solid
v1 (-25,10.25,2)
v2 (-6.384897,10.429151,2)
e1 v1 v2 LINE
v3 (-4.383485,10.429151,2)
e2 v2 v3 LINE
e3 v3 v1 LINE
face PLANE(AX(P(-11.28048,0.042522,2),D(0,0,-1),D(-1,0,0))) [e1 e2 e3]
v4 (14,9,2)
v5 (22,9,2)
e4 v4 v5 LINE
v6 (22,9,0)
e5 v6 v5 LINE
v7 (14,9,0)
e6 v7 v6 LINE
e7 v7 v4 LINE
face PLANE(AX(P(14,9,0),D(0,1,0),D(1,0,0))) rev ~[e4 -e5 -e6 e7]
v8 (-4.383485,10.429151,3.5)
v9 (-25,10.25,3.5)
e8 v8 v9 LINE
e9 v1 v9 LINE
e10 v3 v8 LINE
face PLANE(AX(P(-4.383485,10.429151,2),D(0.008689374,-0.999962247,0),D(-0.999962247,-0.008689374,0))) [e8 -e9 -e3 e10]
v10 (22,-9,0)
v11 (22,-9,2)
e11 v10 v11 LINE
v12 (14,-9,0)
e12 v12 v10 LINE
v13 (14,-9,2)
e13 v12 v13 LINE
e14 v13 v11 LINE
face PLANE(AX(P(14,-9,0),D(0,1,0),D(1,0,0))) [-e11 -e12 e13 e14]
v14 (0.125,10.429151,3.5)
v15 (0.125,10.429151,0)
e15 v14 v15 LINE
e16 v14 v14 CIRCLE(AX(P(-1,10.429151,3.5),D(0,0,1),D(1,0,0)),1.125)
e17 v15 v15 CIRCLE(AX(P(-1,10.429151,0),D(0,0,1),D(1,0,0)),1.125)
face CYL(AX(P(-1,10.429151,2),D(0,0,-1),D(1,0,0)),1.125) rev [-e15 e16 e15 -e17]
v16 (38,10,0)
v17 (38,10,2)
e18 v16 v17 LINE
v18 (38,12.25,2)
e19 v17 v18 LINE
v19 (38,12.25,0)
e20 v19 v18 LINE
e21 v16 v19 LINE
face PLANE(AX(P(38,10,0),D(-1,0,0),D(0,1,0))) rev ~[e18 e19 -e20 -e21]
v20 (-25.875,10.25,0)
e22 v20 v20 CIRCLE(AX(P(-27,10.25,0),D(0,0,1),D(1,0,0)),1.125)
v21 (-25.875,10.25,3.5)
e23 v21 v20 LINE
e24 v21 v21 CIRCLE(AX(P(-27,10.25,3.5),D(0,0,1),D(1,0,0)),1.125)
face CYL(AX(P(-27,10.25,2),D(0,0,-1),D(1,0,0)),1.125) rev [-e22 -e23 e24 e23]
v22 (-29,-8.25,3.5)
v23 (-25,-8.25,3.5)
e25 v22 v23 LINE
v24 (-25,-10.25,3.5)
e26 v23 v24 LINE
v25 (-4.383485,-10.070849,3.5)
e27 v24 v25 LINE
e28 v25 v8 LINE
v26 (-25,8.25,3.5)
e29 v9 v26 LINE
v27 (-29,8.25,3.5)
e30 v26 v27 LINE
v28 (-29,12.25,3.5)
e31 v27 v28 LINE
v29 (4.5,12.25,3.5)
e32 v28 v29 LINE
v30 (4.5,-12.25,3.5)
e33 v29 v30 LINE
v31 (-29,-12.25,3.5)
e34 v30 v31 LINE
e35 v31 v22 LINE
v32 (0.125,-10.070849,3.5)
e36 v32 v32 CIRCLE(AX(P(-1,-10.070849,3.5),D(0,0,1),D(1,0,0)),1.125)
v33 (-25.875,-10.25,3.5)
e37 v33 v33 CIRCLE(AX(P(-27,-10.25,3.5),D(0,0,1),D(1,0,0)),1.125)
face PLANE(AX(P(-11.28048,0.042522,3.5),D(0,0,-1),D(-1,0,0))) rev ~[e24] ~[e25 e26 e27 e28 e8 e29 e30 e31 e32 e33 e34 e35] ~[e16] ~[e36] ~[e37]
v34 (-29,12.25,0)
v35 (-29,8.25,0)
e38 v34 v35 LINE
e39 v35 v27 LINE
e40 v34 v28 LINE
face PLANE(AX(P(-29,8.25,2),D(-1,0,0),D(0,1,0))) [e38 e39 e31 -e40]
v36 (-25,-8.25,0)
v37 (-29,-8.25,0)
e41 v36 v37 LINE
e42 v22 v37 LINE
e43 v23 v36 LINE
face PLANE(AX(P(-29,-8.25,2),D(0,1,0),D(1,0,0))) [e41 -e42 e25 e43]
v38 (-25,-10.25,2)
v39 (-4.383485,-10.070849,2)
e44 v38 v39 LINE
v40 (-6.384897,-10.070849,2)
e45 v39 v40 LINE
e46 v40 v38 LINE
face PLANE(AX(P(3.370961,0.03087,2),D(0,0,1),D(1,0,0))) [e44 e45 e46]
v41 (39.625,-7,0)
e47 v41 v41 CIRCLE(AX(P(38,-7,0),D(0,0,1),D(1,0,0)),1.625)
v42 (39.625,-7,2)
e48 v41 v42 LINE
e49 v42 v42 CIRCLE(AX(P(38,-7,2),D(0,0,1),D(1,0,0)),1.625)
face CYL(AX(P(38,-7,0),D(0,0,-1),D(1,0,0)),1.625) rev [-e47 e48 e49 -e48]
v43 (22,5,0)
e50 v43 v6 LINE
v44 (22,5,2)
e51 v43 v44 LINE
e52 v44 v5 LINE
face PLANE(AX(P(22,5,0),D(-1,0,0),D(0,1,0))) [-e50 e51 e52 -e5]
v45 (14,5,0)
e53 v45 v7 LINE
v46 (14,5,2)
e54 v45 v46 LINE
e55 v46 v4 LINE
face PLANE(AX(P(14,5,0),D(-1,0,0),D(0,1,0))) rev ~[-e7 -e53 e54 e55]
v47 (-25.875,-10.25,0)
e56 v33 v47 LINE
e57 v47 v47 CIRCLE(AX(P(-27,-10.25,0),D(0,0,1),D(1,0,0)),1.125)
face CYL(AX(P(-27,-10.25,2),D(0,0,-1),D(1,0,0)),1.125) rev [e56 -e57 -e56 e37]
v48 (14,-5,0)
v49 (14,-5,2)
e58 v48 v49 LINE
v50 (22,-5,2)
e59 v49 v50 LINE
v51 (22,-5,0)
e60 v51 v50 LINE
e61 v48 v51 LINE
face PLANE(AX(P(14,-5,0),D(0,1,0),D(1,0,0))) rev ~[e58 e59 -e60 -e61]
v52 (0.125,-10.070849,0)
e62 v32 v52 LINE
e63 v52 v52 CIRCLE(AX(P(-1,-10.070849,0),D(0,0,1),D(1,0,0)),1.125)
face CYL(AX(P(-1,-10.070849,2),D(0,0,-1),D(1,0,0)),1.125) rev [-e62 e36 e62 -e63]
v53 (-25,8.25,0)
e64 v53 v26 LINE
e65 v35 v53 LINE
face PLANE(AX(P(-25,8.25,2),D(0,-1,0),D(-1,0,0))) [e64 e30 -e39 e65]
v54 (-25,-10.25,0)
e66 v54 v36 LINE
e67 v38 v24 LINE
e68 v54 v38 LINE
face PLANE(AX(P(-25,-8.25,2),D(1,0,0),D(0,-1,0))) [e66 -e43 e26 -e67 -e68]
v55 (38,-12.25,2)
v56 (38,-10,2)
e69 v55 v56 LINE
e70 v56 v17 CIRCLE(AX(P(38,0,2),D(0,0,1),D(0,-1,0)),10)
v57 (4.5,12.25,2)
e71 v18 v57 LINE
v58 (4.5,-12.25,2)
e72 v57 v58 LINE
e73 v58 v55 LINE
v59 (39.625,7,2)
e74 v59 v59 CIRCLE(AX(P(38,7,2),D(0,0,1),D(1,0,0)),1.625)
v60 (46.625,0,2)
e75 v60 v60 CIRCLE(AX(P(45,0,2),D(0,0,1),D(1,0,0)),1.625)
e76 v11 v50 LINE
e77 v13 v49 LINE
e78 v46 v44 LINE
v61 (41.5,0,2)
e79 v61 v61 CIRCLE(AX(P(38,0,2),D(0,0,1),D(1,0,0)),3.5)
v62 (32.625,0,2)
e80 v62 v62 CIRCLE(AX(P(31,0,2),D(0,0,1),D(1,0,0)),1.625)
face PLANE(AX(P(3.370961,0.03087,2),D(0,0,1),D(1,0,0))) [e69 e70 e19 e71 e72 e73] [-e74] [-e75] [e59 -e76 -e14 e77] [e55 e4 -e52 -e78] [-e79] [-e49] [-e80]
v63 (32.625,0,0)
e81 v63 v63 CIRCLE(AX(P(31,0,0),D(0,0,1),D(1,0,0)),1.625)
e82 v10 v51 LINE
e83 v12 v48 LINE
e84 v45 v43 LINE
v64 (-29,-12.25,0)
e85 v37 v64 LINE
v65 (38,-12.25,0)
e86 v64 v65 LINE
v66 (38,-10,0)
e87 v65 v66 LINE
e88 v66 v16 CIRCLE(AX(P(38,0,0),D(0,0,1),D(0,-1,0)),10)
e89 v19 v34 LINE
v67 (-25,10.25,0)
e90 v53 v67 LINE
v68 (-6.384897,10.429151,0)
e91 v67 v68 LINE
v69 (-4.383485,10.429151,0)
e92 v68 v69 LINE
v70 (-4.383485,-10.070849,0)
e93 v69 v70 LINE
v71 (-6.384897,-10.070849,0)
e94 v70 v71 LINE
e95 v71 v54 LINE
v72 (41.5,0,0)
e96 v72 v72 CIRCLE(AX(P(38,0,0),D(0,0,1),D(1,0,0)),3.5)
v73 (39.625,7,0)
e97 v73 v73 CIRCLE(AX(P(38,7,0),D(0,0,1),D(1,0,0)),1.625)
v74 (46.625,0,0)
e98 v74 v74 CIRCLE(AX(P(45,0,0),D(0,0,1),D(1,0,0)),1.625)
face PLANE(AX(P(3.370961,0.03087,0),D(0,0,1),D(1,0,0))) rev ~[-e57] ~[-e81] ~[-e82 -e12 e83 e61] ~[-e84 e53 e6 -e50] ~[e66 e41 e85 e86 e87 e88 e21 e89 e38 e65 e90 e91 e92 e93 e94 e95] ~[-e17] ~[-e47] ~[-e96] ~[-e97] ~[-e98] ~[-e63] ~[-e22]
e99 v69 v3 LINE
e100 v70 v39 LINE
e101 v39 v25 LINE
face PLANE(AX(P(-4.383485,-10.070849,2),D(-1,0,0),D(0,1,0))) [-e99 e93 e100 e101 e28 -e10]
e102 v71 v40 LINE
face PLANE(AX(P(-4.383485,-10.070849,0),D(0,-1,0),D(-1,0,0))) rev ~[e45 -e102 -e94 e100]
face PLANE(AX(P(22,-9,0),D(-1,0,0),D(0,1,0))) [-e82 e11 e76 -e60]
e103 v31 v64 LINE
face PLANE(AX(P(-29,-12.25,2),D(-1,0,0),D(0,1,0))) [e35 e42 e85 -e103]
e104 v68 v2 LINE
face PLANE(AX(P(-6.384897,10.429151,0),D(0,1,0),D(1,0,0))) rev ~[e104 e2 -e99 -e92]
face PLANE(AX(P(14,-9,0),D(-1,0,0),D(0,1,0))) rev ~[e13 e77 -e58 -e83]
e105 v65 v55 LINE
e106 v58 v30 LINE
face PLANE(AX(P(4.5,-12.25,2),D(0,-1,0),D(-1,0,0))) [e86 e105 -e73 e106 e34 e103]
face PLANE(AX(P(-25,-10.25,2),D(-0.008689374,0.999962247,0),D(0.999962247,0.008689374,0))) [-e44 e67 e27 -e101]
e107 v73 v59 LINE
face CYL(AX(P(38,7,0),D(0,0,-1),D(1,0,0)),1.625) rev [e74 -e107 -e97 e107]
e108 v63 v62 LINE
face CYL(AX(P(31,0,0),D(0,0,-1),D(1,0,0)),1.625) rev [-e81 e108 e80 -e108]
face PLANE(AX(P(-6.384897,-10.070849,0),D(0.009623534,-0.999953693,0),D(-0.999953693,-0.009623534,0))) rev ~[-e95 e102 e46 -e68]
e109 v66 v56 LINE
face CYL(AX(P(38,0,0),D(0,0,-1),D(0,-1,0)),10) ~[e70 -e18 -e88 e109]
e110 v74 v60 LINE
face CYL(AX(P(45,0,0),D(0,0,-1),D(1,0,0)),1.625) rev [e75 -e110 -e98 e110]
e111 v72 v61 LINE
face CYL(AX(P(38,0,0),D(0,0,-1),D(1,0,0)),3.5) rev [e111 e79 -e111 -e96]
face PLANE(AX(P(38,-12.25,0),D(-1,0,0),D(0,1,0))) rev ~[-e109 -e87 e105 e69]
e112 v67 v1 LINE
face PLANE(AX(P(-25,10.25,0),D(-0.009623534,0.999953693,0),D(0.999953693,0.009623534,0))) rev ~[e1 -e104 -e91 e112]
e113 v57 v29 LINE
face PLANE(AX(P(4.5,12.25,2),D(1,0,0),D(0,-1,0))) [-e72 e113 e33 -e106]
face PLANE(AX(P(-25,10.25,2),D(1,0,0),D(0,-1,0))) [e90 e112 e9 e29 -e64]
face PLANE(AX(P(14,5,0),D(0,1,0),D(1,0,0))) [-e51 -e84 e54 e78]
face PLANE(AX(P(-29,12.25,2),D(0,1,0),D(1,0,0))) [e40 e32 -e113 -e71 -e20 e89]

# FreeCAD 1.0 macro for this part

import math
import FreeCAD as App
import Part
import Sketcher

doc = App.newDocument("Part")
body = doc.addObject("PartDesign::Body", "Body")

# Sketch on XY plane
sketch1 = body.newObject("Sketcher::SketchObject", "Sketch")
sketch1.AttachmentSupport = (doc.getObject("XY_Plane"), [""])
sketch1.MapMode = "FlatFace"
sketch1.addGeometry(Part.LineSegment(App.Vector(-29, -8.2, 0), App.Vector(-29, -12.2, 0)), False)
sketch1.addGeometry(Part.LineSegment(App.Vector(-29, -12.2, 0), App.Vector(38, -12.2, 0)), False)
sketch1.addGeometry(Part.LineSegment(App.Vector(38, -12.2, 0), App.Vector(38, -10, 0)), False)
sketch1.addGeometry(Part.ArcOfCircle(Part.Circle(App.Vector(38, 0, 0), App.Vector(0, 0, 1), 10), math.radians(-90), math.radians(90)), False)
sketch1.addGeometry(Part.LineSegment(App.Vector(38, 10, 0), App.Vector(38, 12.2, 0)), False)
sketch1.addGeometry(Part.LineSegment(App.Vector(38, 12.2, 0), App.Vector(-29, 12.2, 0)), False)
sketch1.addGeometry(Part.LineSegment(App.Vector(-29, 12.2, 0), App.Vector(-29, 8.2, 0)), False)
sketch1.addGeometry(Part.LineSegment(App.Vector(-29, 8.2, 0), App.Vector(-25, 8.2, 0)), False)
sketch1.addGeometry(Part.LineSegment(App.Vector(-25, 8.2, 0), App.Vector(-25, 10.2, 0)), False)
sketch1.addGeometry(Part.LineSegment(App.Vector(-25, 10.2, 0), App.Vector(-6.4, 10.4, 0)), False)
sketch1.addGeometry(Part.LineSegment(App.Vector(-6.4, 10.4, 0), App.Vector(-4.4, 10.4, 0)), False)
sketch1.addGeometry(Part.LineSegment(App.Vector(-4.4, 10.4, 0), App.Vector(-4.4, -10.1, 0)), False)
sketch1.addGeometry(Part.LineSegment(App.Vector(-4.4, -10.1, 0), App.Vector(-6.4, -10.1, 0)), False)
sketch1.addGeometry(Part.LineSegment(App.Vector(-6.4, -10.1, 0), App.Vector(-25, -10.2, 0)), False)
sketch1.addGeometry(Part.LineSegment(App.Vector(-25, -10.2, 0), App.Vector(-25, -8.2, 0)), False)
sketch1.addGeometry(Part.LineSegment(App.Vector(-25, -8.2, 0), App.Vector(-29, -8.2, 0)), False)
sketch1.addGeometry(Part.Circle(App.Vector(-27, -10.2, 0), App.Vector(0, 0, 1), 1.1), False)
sketch1.addGeometry(Part.Circle(App.Vector(-1, -10.1, 0), App.Vector(0, 0, 1), 1.1), False)
sketch1.addGeometry(Part.LineSegment(App.Vector(22, -9, 0), App.Vector(14, -9, 0)), False)
sketch1.addGeometry(Part.LineSegment(App.Vector(14, -9, 0), App.Vector(14, -5, 0)), False)
sketch1.addGeometry(Part.LineSegment(App.Vector(14, -5, 0), App.Vector(22, -5, 0)), False)
sketch1.addGeometry(Part.LineSegment(App.Vector(22, -5, 0), App.Vector(22, -9, 0)), False)
sketch1.addGeometry(Part.Circle(App.Vector(38, -7, 0), App.Vector(0, 0, 1), 1.6), False)
sketch1.addGeometry(Part.Circle(App.Vector(31, 0, 0), App.Vector(0, 0, 1), 1.6), False)
sketch1.addGeometry(Part.Circle(App.Vector(38, 0, 0), App.Vector(0, 0, 1), 3.5), False)
sketch1.addGeometry(Part.Circle(App.Vector(45, 0, 0), App.Vector(0, 0, 1), 1.6), False)
sketch1.addGeometry(Part.Circle(App.Vector(-27, 10.2, 0), App.Vector(0, 0, 1), 1.1), False)
sketch1.addGeometry(Part.Circle(App.Vector(-1, 10.4, 0), App.Vector(0, 0, 1), 1.1), False)
sketch1.addGeometry(Part.LineSegment(App.Vector(22, 5, 0), App.Vector(14, 5, 0)), False)
sketch1.addGeometry(Part.LineSegment(App.Vector(14, 5, 0), App.Vector(14, 9, 0)), False)
sketch1.addGeometry(Part.LineSegment(App.Vector(14, 9, 0), App.Vector(22, 9, 0)), False)
sketch1.addGeometry(Part.LineSegment(App.Vector(22, 9, 0), App.Vector(22, 5, 0)), False)
sketch1.addGeometry(Part.Circle(App.Vector(38, 7, 0), App.Vector(0, 0, 1), 1.6), False)
sketch1.addConstraint(Sketcher.Constraint("Coincident", 0, 2, 1, 1))
sketch1.addConstraint(Sketcher.Constraint("Coincident", 1, 2, 2, 1))
sketch1.addConstraint(Sketcher.Constraint("Coincident", 2, 2, 3, 1))
sketch1.addConstraint(Sketcher.Constraint("Coincident", 3, 2, 4, 1))
sketch1.addConstraint(Sketcher.Constraint("Coincident", 4, 2, 5, 1))
sketch1.addConstraint(Sketcher.Constraint("Coincident", 5, 2, 6, 1))
sketch1.addConstraint(Sketcher.Constraint("Coincident", 6, 2, 7, 1))
sketch1.addConstraint(Sketcher.Constraint("Coincident", 7, 2, 8, 1))
sketch1.addConstraint(Sketcher.Constraint("Coincident", 8, 2, 9, 1))
sketch1.addConstraint(Sketcher.Constraint("Coincident", 9, 2, 10, 1))
sketch1.addConstraint(Sketcher.Constraint("Coincident", 10, 2, 11, 1))
sketch1.addConstraint(Sketcher.Constraint("Coincident", 11, 2, 12, 1))
sketch1.addConstraint(Sketcher.Constraint("Coincident", 12, 2, 13, 1))
sketch1.addConstraint(Sketcher.Constraint("Coincident", 13, 2, 14, 1))
sketch1.addConstraint(Sketcher.Constraint("Coincident", 14, 2, 15, 1))
sketch1.addConstraint(Sketcher.Constraint("Coincident", 15, 2, 0, 1))
sketch1.addConstraint(Sketcher.Constraint("Coincident", 18, 2, 19, 1))
sketch1.addConstraint(Sketcher.Constraint("Coincident", 19, 2, 20, 1))
sketch1.addConstraint(Sketcher.Constraint("Coincident", 20, 2, 21, 1))
sketch1.addConstraint(Sketcher.Constraint("Coincident", 21, 2, 18, 1))
sketch1.addConstraint(Sketcher.Constraint("Coincident", 28, 2, 29, 1))
sketch1.addConstraint(Sketcher.Constraint("Coincident", 29, 2, 30, 1))
sketch1.addConstraint(Sketcher.Constraint("Coincident", 30, 2, 31, 1))
sketch1.addConstraint(Sketcher.Constraint("Coincident", 31, 2, 28, 1))
sketch1.addConstraint(Sketcher.Constraint("Vertical", 0))
sketch1.addConstraint(Sketcher.Constraint("Horizontal", 1))
sketch1.addConstraint(Sketcher.Constraint("Vertical", 2))
sketch1.addConstraint(Sketcher.Constraint("Vertical", 4))
sketch1.addConstraint(Sketcher.Constraint("Horizontal", 5))
sketch1.addConstraint(Sketcher.Constraint("Vertical", 6))
sketch1.addConstraint(Sketcher.Constraint("Horizontal", 7))
sketch1.addConstraint(Sketcher.Constraint("Vertical", 8))
sketch1.addConstraint(Sketcher.Constraint("Horizontal", 10))
sketch1.addConstraint(Sketcher.Constraint("Vertical", 11))
sketch1.addConstraint(Sketcher.Constraint("Horizontal", 12))
sketch1.addConstraint(Sketcher.Constraint("Vertical", 14))
sketch1.addConstraint(Sketcher.Constraint("Horizontal", 15))
sketch1.addConstraint(Sketcher.Constraint("Horizontal", 18))
sketch1.addConstraint(Sketcher.Constraint("Vertical", 19))
sketch1.addConstraint(Sketcher.Constraint("Horizontal", 20))
sketch1.addConstraint(Sketcher.Constraint("Vertical", 21))
sketch1.addConstraint(Sketcher.Constraint("Horizontal", 28))
sketch1.addConstraint(Sketcher.Constraint("Vertical", 29))
sketch1.addConstraint(Sketcher.Constraint("Horizontal", 30))
sketch1.addConstraint(Sketcher.Constraint("Vertical", 31))
sketch1.addConstraint(Sketcher.Constraint("Coincident", 24, 3, 3, 3))
sketch1.addConstraint(Sketcher.Constraint("Equal", 16, 17))
sketch1.addConstraint(Sketcher.Constraint("Equal", 22, 23))
sketch1.addConstraint(Sketcher.Constraint("Equal", 23, 25))
sketch1.addConstraint(Sketcher.Constraint("Equal", 17, 26))
sketch1.addConstraint(Sketcher.Constraint("Equal", 26, 27))
sketch1.addConstraint(Sketcher.Constraint("Equal", 25, 32))
sketch1.addConstraint(Sketcher.Constraint("Symmetric", 16, 3, 26, 3, -1))
sketch1.addConstraint(Sketcher.Constraint("Symmetric", 22, 3, 32, 3, -1))
sketch1.addConstraint(Sketcher.Constraint("Symmetric", 2, 2, 3, 2, -1))
sketch1.addConstraint(Sketcher.Constraint("Symmetric", 0, 2, 5, 2, -1))
sketch1.addConstraint(Sketcher.Constraint("Symmetric", 8, 2, 13, 2, -1))
sketch1.addConstraint(Sketcher.Constraint("Symmetric", 19, 2, 28, 2, -1))
sketch1.addConstraint(Sketcher.Constraint("Symmetric", 21, 2, 30, 2, -1))
sketch1.addConstraint(Sketcher.Constraint("PointOnObject", 23, 3, -1))
sketch1.addConstraint(Sketcher.Constraint("PointOnObject", 25, 3, -1))
sketch1.addConstraint(Sketcher.Constraint("Parallel", 9, 13))
sketch1.addConstraint(Sketcher.Constraint("Horizontal", 26, 3, 8, 2))
sketch1.addConstraint(Sketcher.Constraint("Horizontal", 27, 3, 9, 2))
sketch1.addConstraint(Sketcher.Constraint("Horizontal", 17, 3, 11, 2))
sketch1.addConstraint(Sketcher.Constraint("Vertical", 3, 3, 22, 3))
sketch1.addConstraint(Sketcher.Constraint("Vertical", 17, 3, 27, 3))
sketch1.addConstraint(Sketcher.Constraint("Vertical", 32, 3, 1, 2))
sketch1.addConstraint(Sketcher.Constraint("Vertical", 9, 2, 12, 2))
sketch1.addConstraint(Sketcher.Constraint("Equal", 15, 0))
sketch1.addConstraint(Sketcher.Constraint("Equal", 0, 6))
sketch1.addConstraint(Sketcher.Constraint("Equal", 6, 19))
sketch1.addConstraint(Sketcher.Constraint("Diameter", 24, 7.0))
sketch1.addConstraint(Sketcher.Constraint("Radius", 3, 10.0))
sketch1.addConstraint(Sketcher.Constraint("Diameter", 16, 2.25))
sketch1.addConstraint(Sketcher.Constraint("Diameter", 22, 3.25))
sketch1.addConstraint(Sketcher.Constraint("DistanceX", 1, 1, 1, 2, 67.0))
sketch1.addConstraint(Sketcher.Constraint("DistanceX", 7, 1, 7, 2, 4.0))
sketch1.addConstraint(Sketcher.Constraint("DistanceX", 18, 2, 18, 1, 8.0))
sketch1.addConstraint(Sketcher.Constraint("DistanceY", 8, 1, 8, 2, 2.0))
sketch1.addConstraint(Sketcher.Constraint("DistanceY", 11, 2, 11, 1, 20.5))
sketch1.addConstraint(Sketcher.Constraint("DistanceX", -1, 1, 3, 3, 38.0))
sketch1.addConstraint(Sketcher.Constraint("DistanceX", 16, 3, -1, 1, 27.0))
sketch1.addConstraint(Sketcher.Constraint("DistanceX", 17, 3, -1, 1, 1.0))
sketch1.addConstraint(Sketcher.Constraint("DistanceY", 22, 3, -1, 1, 7.0))
sketch1.addConstraint(Sketcher.Constraint("DistanceX", -1, 1, 23, 3, 31.0))
sketch1.addConstraint(Sketcher.Constraint("DistanceX", -1, 1, 25, 3, 45.0))
sketch1.addConstraint(Sketcher.Constraint("DistanceX", -1, 1, 18, 2, 14.0))
sketch1.addConstraint(Sketcher.Constraint("DistanceY", 18, 2, -1, 1, 9.0))
sketch1.addConstraint(Sketcher.Constraint("DistanceX", 10, 1, 10, 2, 2.001412))
sketch1.addConstraint(Sketcher.Constraint("DistanceY", 17, 3, -1, 1, 10.070849))
sketch1.addConstraint(Sketcher.Constraint("Distance", 9, 18.615965))
pad1 = body.newObject("PartDesign::Pad", "Pad")
pad1.Profile = sketch1
pad1.Length = 2

# Sketch on XY plane
sketch2 = body.newObject("Sketcher::SketchObject", "Sketch001")
sketch2.AttachmentSupport = (doc.getObject("XY_Plane"), [""])
sketch2.MapMode = "FlatFace"
sketch2.AttachmentOffset = App.Placement(App.Vector(0, 0, 2), App.Rotation())
sketch2.addGeometry(Part.LineSegment(App.Vector(4.5, 12.2, 0), App.Vector(-29, 12.2, 0)), False)
sketch2.addGeometry(Part.LineSegment(App.Vector(-29, 12.2, 0), App.Vector(-29, 8.2, 0)), False)
sketch2.addGeometry(Part.LineSegment(App.Vector(-29, 8.2, 0), App.Vector(-25, 8.2, 0)), False)
sketch2.addGeometry(Part.LineSegment(App.Vector(-25, 8.2, 0), App.Vector(-25, 10.2, 0)), False)
sketch2.addGeometry(Part.LineSegment(App.Vector(-25, 10.2, 0), App.Vector(-4.4, 10.4, 0)), False)
sketch2.addGeometry(Part.LineSegment(App.Vector(-4.4, 10.4, 0), App.Vector(-4.4, -10.1, 0)), False)
sketch2.addGeometry(Part.LineSegment(App.Vector(-4.4, -10.1, 0), App.Vector(-25, -10.2, 0)), False)
sketch2.addGeometry(Part.LineSegment(App.Vector(-25, -10.2, 0), App.Vector(-25, -8.2, 0)), False)
sketch2.addGeometry(Part.LineSegment(App.Vector(-25, -8.2, 0), App.Vector(-29, -8.2, 0)), False)
sketch2.addGeometry(Part.LineSegment(App.Vector(-29, -8.2, 0), App.Vector(-29, -12.2, 0)), False)
sketch2.addGeometry(Part.LineSegment(App.Vector(-29, -12.2, 0), App.Vector(4.5, -12.2, 0)), False)
sketch2.addGeometry(Part.LineSegment(App.Vector(4.5, -12.2, 0), App.Vector(4.5, 12.2, 0)), False)
sketch2.addGeometry(Part.Circle(App.Vector(-1, -10.1, 0), App.Vector(0, 0, 1), 1.1), False)
sketch2.addGeometry(Part.Circle(App.Vector(-27, -10.2, 0), App.Vector(0, 0, 1), 1.1), False)
sketch2.addGeometry(Part.Circle(App.Vector(-1, 10.4, 0), App.Vector(0, 0, 1), 1.1), False)
sketch2.addGeometry(Part.Circle(App.Vector(-27, 10.2, 0), App.Vector(0, 0, 1), 1.1), False)
sketch2.addConstraint(Sketcher.Constraint("Coincident", 0, 2, 1, 1))
sketch2.addConstraint(Sketcher.Constraint("Coincident", 1, 2, 2, 1))
sketch2.addConstraint(Sketcher.Constraint("Coincident", 2, 2, 3, 1))
sketch2.addConstraint(Sketcher.Constraint("Coincident", 3, 2, 4, 1))
sketch2.addConstraint(Sketcher.Constraint("Coincident", 4, 2, 5, 1))
sketch2.addConstraint(Sketcher.Constraint("Coincident", 5, 2, 6, 1))
sketch2.addConstraint(Sketcher.Constraint("Coincident", 6, 2, 7, 1))
sketch2.addConstraint(Sketcher.Constraint("Coincident", 7, 2, 8, 1))
sketch2.addConstraint(Sketcher.Constraint("Coincident", 8, 2, 9, 1))
sketch2.addConstraint(Sketcher.Constraint("Coincident", 9, 2, 10, 1))
sketch2.addConstraint(Sketcher.Constraint("Coincident", 10, 2, 11, 1))
sketch2.addConstraint(Sketcher.Constraint("Coincident", 11, 2, 0, 1))
sketch2.addConstraint(Sketcher.Constraint("Horizontal", 0))
sketch2.addConstraint(Sketcher.Constraint("Vertical", 1))
sketch2.addConstraint(Sketcher.Constraint("Horizontal", 2))
sketch2.addConstraint(Sketcher.Constraint("Vertical", 3))
sketch2.addConstraint(Sketcher.Constraint("Vertical", 5))
sketch2.addConstraint(Sketcher.Constraint("Vertical", 7))
sketch2.addConstraint(Sketcher.Constraint("Horizontal", 8))
sketch2.addConstraint(Sketcher.Constraint("Vertical", 9))
sketch2.addConstraint(Sketcher.Constraint("Horizontal", 10))
sketch2.addConstraint(Sketcher.Constraint("Vertical", 11))
sketch2.addConstraint(Sketcher.Constraint("Equal", 12, 13))
sketch2.addConstraint(Sketcher.Constraint("Equal", 13, 14))
sketch2.addConstraint(Sketcher.Constraint("Equal", 14, 15))
sketch2.addConstraint(Sketcher.Constraint("Symmetric", 13, 3, 15, 3, -1))
sketch2.addConstraint(Sketcher.Constraint("Symmetric", 3, 2, 6, 2, -1))
sketch2.addConstraint(Sketcher.Constraint("Symmetric", 1, 2, 8, 2, -1))
sketch2.addConstraint(Sketcher.Constraint("Parallel", 4, 6))
sketch2.addConstraint(Sketcher.Constraint("Horizontal", 15, 3, 3, 2))
sketch2.addConstraint(Sketcher.Constraint("Horizontal", 14, 3, 4, 2))
sketch2.addConstraint(Sketcher.Constraint("Horizontal", 12, 3, 5, 2))
sketch2.addConstraint(Sketcher.Constraint("Vertical", 12, 3, 14, 3))
sketch2.addConstraint(Sketcher.Constraint("Equal", 8, 1))
sketch2.addConstraint(Sketcher.Constraint("Equal", 1, 9))
sketch2.addConstraint(Sketcher.Constraint("Diameter", 12, 2.25))
sketch2.addConstraint(Sketcher.Constraint("DistanceX", 2, 1, 2, 2, 4.0))
sketch2.addConstraint(Sketcher.Constraint("DistanceY", 3, 1, 3, 2, 2.0))
sketch2.addConstraint(Sketcher.Constraint("DistanceX", 0, 2, 0, 1, 33.5))
sketch2.addConstraint(Sketcher.Constraint("DistanceY", 5, 2, 5, 1, 20.5))
sketch2.addConstraint(Sketcher.Constraint("DistanceX", 12, 3, -1, 1, 1.0))
sketch2.addConstraint(Sketcher.Constraint("DistanceX", 13, 3, -1, 1, 27.0))
sketch2.addConstraint(Sketcher.Constraint("DistanceX", 0, 2, -1, 1, 29.0))
sketch2.addConstraint(Sketcher.Constraint("DistanceY", 12, 3, -1, 1, 10.070849))
sketch2.addConstraint(Sketcher.Constraint("Distance", 4, 20.617293))
pad2 = body.newObject("PartDesign::Pad", "Pad001")
pad2.Profile = sketch2
pad2.Length = 1.5

doc.recompute()
